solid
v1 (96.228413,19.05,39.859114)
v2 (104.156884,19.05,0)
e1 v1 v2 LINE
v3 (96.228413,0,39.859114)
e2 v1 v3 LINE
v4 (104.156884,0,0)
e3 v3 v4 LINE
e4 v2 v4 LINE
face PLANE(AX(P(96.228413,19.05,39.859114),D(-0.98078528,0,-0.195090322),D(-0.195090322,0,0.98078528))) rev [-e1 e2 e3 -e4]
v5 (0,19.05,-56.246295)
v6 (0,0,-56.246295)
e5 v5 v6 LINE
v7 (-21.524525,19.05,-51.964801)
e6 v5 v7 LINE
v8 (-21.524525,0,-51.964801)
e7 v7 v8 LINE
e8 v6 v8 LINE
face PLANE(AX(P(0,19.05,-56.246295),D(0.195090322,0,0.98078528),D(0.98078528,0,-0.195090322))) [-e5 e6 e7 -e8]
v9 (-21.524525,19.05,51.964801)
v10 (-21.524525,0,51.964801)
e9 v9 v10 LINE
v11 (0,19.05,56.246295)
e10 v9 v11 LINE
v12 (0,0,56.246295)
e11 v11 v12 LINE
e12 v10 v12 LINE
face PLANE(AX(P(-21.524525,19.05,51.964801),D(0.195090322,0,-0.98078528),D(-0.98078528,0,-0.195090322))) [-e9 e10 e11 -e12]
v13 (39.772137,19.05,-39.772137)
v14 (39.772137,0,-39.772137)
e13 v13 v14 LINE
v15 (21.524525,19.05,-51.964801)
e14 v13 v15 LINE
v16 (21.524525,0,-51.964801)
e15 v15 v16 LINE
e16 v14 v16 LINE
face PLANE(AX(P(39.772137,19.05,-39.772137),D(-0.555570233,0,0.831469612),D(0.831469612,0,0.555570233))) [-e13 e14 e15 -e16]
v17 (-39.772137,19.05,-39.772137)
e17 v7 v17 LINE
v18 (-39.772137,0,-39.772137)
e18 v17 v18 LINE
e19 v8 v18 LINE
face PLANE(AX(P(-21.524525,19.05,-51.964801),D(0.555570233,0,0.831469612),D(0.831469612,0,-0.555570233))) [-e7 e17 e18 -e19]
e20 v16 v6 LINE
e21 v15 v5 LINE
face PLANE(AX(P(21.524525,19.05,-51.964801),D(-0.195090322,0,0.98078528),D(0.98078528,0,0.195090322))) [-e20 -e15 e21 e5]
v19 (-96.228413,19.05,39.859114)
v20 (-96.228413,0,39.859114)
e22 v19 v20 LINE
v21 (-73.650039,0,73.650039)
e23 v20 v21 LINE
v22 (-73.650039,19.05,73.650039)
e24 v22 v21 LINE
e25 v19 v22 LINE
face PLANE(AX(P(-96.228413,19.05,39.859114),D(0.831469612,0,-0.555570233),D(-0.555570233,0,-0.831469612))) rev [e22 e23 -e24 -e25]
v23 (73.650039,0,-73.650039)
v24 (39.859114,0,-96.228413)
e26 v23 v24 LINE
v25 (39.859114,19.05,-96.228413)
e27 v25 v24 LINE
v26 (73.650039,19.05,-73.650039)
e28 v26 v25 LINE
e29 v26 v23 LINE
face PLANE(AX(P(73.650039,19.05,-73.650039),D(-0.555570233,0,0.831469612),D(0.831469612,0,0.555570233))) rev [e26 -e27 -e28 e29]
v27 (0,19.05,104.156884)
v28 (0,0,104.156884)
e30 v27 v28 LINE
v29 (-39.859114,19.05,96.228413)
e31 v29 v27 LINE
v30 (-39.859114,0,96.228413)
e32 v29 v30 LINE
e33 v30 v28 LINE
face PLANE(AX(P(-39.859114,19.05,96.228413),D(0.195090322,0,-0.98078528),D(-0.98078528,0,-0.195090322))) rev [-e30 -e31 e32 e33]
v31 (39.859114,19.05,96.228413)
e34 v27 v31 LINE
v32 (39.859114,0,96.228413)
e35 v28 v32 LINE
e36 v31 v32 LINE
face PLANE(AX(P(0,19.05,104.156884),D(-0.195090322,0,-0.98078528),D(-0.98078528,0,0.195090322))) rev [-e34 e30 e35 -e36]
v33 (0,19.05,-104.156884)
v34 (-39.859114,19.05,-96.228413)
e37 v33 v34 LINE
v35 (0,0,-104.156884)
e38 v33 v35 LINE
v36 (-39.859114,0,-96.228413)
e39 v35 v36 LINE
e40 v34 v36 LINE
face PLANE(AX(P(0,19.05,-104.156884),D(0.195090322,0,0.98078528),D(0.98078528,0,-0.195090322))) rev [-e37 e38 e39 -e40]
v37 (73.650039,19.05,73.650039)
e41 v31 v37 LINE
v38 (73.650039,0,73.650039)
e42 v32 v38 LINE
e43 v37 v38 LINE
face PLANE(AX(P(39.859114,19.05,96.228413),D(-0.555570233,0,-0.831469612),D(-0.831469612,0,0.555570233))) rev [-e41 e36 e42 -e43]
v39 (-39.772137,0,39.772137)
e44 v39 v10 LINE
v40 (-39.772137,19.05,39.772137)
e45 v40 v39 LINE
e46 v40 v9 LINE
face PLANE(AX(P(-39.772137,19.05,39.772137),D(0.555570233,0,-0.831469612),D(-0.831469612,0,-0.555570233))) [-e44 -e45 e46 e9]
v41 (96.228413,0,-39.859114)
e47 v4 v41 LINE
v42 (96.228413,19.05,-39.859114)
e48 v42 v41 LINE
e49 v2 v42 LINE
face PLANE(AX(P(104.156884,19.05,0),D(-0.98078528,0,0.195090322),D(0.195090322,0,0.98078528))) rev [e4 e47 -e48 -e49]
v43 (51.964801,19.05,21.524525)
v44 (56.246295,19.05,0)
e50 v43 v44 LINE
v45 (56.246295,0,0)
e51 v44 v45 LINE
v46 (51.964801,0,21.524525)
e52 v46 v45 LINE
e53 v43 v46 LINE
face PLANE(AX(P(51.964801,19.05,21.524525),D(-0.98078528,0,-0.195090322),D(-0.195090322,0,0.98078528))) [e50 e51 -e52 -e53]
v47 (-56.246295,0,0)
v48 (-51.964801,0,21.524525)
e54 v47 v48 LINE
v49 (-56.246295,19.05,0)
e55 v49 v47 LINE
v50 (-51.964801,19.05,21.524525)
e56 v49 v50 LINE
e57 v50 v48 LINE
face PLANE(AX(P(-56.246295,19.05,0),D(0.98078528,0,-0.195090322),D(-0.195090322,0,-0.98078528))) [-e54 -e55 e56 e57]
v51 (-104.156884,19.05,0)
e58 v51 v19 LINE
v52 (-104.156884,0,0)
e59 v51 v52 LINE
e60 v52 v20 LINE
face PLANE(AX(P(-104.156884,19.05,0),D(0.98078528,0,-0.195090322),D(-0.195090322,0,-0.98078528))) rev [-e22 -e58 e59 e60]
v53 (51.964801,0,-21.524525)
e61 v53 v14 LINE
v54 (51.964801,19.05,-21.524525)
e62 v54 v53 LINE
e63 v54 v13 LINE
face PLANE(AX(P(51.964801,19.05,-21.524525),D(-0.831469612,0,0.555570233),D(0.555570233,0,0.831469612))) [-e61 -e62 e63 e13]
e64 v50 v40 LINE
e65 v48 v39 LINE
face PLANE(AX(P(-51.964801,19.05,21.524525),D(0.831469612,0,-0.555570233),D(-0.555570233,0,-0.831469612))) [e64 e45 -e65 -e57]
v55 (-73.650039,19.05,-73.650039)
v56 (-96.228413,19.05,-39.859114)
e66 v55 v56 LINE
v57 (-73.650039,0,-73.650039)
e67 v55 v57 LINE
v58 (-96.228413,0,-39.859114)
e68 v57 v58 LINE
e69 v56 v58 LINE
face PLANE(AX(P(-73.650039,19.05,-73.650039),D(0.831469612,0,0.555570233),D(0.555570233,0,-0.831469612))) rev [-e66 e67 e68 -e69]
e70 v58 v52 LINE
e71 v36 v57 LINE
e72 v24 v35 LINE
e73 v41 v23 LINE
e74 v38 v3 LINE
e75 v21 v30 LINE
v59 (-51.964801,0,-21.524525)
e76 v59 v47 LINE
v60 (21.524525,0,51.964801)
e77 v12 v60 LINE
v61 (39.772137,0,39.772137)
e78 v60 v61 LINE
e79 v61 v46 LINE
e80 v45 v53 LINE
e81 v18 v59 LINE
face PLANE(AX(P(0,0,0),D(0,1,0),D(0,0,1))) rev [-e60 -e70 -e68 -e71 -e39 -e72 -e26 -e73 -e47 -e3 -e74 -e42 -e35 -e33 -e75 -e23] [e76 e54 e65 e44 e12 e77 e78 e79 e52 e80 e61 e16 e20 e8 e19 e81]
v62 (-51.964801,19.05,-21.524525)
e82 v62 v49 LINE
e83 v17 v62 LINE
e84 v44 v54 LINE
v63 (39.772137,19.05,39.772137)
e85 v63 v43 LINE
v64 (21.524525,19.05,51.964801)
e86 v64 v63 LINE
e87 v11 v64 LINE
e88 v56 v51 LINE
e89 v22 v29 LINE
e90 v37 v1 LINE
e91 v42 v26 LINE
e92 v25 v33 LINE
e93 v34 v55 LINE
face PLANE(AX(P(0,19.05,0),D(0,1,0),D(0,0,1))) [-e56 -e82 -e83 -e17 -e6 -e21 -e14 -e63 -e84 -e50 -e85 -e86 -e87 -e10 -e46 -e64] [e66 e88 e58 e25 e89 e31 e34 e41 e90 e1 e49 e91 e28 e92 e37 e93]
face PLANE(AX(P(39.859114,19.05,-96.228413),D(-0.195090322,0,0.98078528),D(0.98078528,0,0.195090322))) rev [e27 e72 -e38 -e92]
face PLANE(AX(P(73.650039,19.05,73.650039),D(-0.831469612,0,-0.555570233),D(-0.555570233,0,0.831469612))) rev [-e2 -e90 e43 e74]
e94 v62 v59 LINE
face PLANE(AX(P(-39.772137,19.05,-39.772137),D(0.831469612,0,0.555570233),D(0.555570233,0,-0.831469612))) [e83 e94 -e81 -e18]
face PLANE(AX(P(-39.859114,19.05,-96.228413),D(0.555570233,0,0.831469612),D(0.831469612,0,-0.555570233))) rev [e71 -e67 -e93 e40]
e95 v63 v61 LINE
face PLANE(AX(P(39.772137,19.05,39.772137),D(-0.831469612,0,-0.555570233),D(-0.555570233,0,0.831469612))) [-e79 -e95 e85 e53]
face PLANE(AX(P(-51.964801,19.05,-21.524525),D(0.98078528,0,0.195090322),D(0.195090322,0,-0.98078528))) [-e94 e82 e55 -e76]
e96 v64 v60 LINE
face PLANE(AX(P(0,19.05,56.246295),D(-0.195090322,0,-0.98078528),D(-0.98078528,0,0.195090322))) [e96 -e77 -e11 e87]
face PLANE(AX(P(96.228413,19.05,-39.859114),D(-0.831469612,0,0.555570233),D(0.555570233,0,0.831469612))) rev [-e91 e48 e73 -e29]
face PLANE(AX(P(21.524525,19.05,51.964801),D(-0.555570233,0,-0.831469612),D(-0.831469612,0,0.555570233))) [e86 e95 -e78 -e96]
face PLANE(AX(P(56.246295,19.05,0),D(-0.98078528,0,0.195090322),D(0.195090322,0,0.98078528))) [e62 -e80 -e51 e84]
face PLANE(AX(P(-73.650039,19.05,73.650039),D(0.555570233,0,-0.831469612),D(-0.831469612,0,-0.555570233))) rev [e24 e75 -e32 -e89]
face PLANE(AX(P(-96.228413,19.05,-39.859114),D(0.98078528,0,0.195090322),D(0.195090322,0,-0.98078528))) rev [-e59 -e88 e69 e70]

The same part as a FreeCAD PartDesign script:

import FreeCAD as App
import Part
import Sketcher

V = App.Vector
Q = App.Units.Quantity


def add_polygon(sketch, points):
    """Adds a closed chain of lines whose ends are joined by coincident constraints."""
    first, n = sketch.GeometryCount, len(points)
    for a, b in zip(points, points[1:] + points[:1]):
        sketch.addGeometry(Part.LineSegment(App.Vector(*a, 0), App.Vector(*b, 0)), False)
    for i in range(n):
        sketch.addConstraint(Sketcher.Constraint("Coincident", first + i, 2, first + (i + 1) % n, 1))

doc = App.newDocument("Part")
params = doc.addObject("Spreadsheet::Sheet", "Params")
for row, (alias, value) in enumerate([
    ("sketch1_length", "1.6 in"),
    ("pad1_length", "0.75 in"),
], start=1):
    params.set(f"A{row}", alias)
    params.set(f"B{row}", "=" + value)
    params.setAlias(f"B{row}", alias)

body = doc.addObject("PartDesign::Body", "Body")

# Sketch on XZ plane
sketch1 = doc.addObject("Sketcher::SketchObject", "Sketch")
body.addObject(sketch1)
sketch1.AttachmentSupport = (doc.XZ_Plane, [""])
sketch1.MapMode = "FlatFace"
add_polygon(sketch1, [(104.156884, 0), (96.228413, -39.859114), (73.650039, -73.650039), (39.859114, -96.228413), (0, -104.156884), (-39.859114, -96.228413), (-73.650039, -73.650039), (-96.228413, -39.859114), (-104.156884, 0), (-96.228413, 39.859114), (-73.650039, 73.650039), (-39.859114, 96.228413), (0, 104.156884), (39.859114, 96.228413), (73.650039, 73.650039), (96.228413, 39.859114)])  # lines 0-15
add_polygon(sketch1, [(51.964801, -21.524525), (56.246295, 0), (51.964801, 21.524525), (39.772137, 39.772137), (21.524525, 51.964801), (0, 56.246295), (-21.524525, 51.964801), (-39.772137, 39.772137), (-51.964801, 21.524525), (-56.246295, 0), (-51.964801, -21.524525), (-39.772137, -39.772137), (-21.524525, -51.964801), (0, -56.246295), (21.524525, -51.964801), (39.772137, -39.772137)])  # lines 16-31
sketch1.addConstraint([
    Sketcher.Constraint("Symmetric", 0, 2, 8, 2, -1, 1),
    Sketcher.Constraint("Symmetric", 1, 2, 9, 2, -1, 1),
    Sketcher.Constraint("Symmetric", 2, 2, 10, 2, -1, 1),
    Sketcher.Constraint("Symmetric", 3, 2, 11, 2, -1, 1),
    Sketcher.Constraint("Symmetric", 4, 2, 12, 2, -1, 1),
    Sketcher.Constraint("Symmetric", 5, 2, 13, 2, -1, 1),
    Sketcher.Constraint("Symmetric", 6, 2, 14, 2, -1, 1),
    Sketcher.Constraint("Symmetric", 7, 2, 15, 2, -1, 1),
    Sketcher.Constraint("Symmetric", 16, 2, 24, 2, -1, 1),
    Sketcher.Constraint("Symmetric", 17, 2, 25, 2, -1, 1),
    Sketcher.Constraint("Symmetric", 18, 2, 26, 2, -1, 1),
    Sketcher.Constraint("Symmetric", 19, 2, 27, 2, -1, 1),
    Sketcher.Constraint("Symmetric", 20, 2, 28, 2, -1, 1),
    Sketcher.Constraint("Symmetric", 21, 2, 29, 2, -1, 1),
    Sketcher.Constraint("Symmetric", 22, 2, 30, 2, -1, 1),
    Sketcher.Constraint("Symmetric", 23, 2, 31, 2, -1, 1),
    Sketcher.Constraint("Symmetric", 2, 2, 4, 2, -2),
    Sketcher.Constraint("Symmetric", 1, 2, 5, 2, -2),
    Sketcher.Constraint("Symmetric", 0, 2, 6, 2, -2),
    Sketcher.Constraint("Symmetric", 19, 2, 21, 2, -2),
    Sketcher.Constraint("Symmetric", 18, 2, 22, 2, -2),
    Sketcher.Constraint("Symmetric", 17, 2, 23, 2, -2),
    Sketcher.Constraint("PointOnObject", 3, 2, -2),
    Sketcher.Constraint("PointOnObject", 7, 2, -1),
    Sketcher.Constraint("PointOnObject", 16, 2, -1),
    Sketcher.Constraint("PointOnObject", 20, 2, -2),
    Sketcher.Constraint("Perpendicular", 0, 4),
    Sketcher.Constraint("Perpendicular", 1, 5),
    Sketcher.Constraint("Perpendicular", 12, 16),
    Sketcher.Constraint("Parallel", 14, 18),
    Sketcher.Constraint("Parallel", 13, 19),
    Sketcher.Constraint("Perpendicular", 16, 20),
    Sketcher.Constraint("Equal", 0, 1),
    Sketcher.Constraint("Equal", 1, 2),
    Sketcher.Constraint("Equal", 2, 3),
    Sketcher.Constraint("Equal", 17, 18),
    Sketcher.Constraint("Equal", 18, 19),
    Sketcher.Constraint("Equal", 19, 20),
    Sketcher.Constraint("Distance", 0, Q("1.6 in")),
    Sketcher.Constraint("Angle", 0, Q("-101.25 deg")),
    Sketcher.Constraint("Angle", 1, Q("-123.75 deg")),
    Sketcher.Constraint("DistanceX", -1, 1, 17, 2, 51.964801),
])
sketch1.setExpression("Constraints[70]", "Params.sketch1_length")
pad1 = doc.addObject("PartDesign::Pad", "Pad")
body.addObject(pad1)
pad1.Profile = sketch1
pad1.setExpression("Length", "Params.pad1_length")
pad1.Reversed = True

doc.recompute()
